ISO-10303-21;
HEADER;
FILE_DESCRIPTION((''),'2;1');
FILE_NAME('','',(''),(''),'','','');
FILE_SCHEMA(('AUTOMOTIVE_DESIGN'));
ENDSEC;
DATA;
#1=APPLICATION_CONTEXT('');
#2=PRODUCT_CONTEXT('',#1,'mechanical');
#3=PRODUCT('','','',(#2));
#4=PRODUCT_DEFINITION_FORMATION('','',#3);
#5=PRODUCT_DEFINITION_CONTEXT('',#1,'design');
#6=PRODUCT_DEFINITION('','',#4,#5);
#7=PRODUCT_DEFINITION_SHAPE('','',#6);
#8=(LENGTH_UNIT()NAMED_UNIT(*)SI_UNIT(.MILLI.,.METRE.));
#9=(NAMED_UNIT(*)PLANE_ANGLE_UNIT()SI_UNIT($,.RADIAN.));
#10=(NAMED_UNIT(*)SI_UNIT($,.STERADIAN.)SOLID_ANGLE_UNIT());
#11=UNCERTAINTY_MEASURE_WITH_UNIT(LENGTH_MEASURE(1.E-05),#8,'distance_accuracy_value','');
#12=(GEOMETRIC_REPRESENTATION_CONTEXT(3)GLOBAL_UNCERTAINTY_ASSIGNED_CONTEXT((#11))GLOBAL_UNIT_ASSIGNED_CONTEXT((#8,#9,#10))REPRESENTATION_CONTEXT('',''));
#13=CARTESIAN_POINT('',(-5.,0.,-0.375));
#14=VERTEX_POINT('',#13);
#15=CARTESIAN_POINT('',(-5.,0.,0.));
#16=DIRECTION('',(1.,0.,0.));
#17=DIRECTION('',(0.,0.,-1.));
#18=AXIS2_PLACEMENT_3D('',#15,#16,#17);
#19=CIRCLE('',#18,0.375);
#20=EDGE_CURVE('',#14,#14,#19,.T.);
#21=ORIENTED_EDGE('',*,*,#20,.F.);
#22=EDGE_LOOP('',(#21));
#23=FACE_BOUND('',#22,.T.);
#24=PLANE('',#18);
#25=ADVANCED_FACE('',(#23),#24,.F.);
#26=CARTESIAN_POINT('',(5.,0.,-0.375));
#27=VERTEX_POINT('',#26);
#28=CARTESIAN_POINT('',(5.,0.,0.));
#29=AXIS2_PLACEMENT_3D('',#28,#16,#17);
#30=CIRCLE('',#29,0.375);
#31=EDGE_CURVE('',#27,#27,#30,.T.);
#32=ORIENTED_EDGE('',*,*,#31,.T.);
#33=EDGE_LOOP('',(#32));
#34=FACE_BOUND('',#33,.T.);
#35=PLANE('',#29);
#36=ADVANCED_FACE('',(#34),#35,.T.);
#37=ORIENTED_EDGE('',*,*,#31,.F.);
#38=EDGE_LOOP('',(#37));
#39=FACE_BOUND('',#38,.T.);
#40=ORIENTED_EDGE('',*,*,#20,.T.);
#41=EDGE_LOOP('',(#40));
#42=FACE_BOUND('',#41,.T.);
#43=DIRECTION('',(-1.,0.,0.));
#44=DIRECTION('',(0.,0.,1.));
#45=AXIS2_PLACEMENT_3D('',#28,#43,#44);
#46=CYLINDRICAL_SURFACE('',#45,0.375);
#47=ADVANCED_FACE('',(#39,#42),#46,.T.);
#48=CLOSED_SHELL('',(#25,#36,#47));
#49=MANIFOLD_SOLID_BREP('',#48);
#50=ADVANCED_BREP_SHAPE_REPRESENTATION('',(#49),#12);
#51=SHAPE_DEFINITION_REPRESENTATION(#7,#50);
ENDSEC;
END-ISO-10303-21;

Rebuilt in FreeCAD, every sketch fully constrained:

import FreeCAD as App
import Part
import Sketcher

V = App.Vector

doc = App.newDocument("Part")
body = doc.addObject("PartDesign::Body", "Body")

sketch1 = doc.addObject("Sketcher::SketchObject", "Sketch")
body.addObject(sketch1)
sketch1.AttachmentSupport = (doc.YZ_Plane, [""])
sketch1.MapMode = "FlatFace"
sketch1.addGeometry(Part.Circle(V(0, 0, 0), V(0, 0, 1), 0.38), False)
sketch1.addConstraint(Sketcher.Constraint("Coincident", 0, 3, -1, 1))
sketch1.addConstraint(Sketcher.Constraint("Diameter", 0, 0.75))
pad1 = doc.addObject("PartDesign::Pad", "Pad")
body.addObject(pad1)
pad1.Profile = sketch1
pad1.Length = 10
pad1.Midplane = True

doc.recompute()
